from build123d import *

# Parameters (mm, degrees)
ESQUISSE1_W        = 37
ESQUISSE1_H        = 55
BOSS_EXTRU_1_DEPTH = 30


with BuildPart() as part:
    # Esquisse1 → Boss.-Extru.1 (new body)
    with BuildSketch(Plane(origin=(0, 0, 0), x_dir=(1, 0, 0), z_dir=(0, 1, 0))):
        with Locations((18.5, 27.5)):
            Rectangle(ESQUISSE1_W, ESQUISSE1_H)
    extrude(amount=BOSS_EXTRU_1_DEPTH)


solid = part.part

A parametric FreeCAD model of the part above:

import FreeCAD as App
import Part
import Sketcher
from FreeCAD import Vector

doc = App.newDocument("Part")
body = doc.addObject("PartDesign::Body", "Body")

# Sketch on XZ plane
sketch1 = body.newObject("Sketcher::SketchObject", "Sketch")
sketch1.AttachmentSupport = (doc.getObject("XZ_Plane"), [""])
sketch1.MapMode = "FlatFace"
sketch1.addGeometry(Part.LineSegment(Vector(0, -55, 0), Vector(0, 0, 0)), False)
sketch1.addGeometry(Part.LineSegment(Vector(0, 0, 0), Vector(37, 0, 0)), False)
sketch1.addGeometry(Part.LineSegment(Vector(37, 0, 0), Vector(37, -55, 0)), False)
sketch1.addGeometry(Part.LineSegment(Vector(37, -55, 0), Vector(0, -55, 0)), False)
sketch1.addConstraint(Sketcher.Constraint("Coincident", 0, 2, 1, 1))
sketch1.addConstraint(Sketcher.Constraint("Coincident", 1, 2, 2, 1))
sketch1.addConstraint(Sketcher.Constraint("Coincident", 2, 2, 3, 1))
sketch1.addConstraint(Sketcher.Constraint("Coincident", 3, 2, 0, 1))
sketch1.addConstraint(Sketcher.Constraint("Vertical", 0))
sketch1.addConstraint(Sketcher.Constraint("Horizontal", 1))
sketch1.addConstraint(Sketcher.Constraint("Vertical", 2))
sketch1.addConstraint(Sketcher.Constraint("Horizontal", 3))
sketch1.addConstraint(Sketcher.Constraint("Coincident", 0, 2, -1, 1))
sketch1.addConstraint(Sketcher.Constraint("DistanceX", 1, 1, 1, 2, 37.0))
sketch1.addConstraint(Sketcher.Constraint("DistanceY", 0, 1, 0, 2, 55.0))
pad1 = body.newObject("PartDesign::Pad", "Pad")
pad1.Profile = sketch1
pad1.Length = 30
pad1.Reversed = True

doc.recompute()
